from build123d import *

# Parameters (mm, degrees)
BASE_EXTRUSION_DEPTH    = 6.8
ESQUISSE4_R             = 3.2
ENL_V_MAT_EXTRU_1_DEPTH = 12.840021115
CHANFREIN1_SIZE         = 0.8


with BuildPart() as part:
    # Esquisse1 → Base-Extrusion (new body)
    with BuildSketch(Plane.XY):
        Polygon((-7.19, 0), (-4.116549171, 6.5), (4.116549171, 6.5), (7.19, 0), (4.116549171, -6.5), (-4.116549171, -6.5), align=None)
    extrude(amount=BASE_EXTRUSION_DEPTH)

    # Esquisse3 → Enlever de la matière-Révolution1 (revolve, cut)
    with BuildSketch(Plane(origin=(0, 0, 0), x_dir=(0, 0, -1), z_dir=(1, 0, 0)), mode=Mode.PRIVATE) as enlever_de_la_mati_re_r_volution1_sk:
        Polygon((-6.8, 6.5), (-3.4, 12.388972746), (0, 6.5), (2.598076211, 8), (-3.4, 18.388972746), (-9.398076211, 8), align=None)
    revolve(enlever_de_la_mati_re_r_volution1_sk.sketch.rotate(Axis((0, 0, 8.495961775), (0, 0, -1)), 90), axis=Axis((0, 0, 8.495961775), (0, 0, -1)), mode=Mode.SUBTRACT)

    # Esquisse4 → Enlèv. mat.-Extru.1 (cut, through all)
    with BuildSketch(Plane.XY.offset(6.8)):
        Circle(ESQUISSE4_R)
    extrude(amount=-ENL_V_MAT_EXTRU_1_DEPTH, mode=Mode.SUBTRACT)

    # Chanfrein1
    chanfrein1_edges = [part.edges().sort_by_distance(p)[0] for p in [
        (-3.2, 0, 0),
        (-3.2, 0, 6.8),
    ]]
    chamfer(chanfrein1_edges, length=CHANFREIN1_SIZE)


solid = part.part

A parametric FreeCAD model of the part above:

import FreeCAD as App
import Part
import Sketcher
from FreeCAD import Vector
Q = App.Units.Quantity


def edges_at(feature, points):
    """Names of the edges that pass closest to the given points."""
    edges = feature.Shape.Edges
    near = lambda p: min(range(len(edges)), key=lambda i: edges[i].distToShape(Part.Vertex(*p))[0])
    return sorted({f"Edge{near(p) + 1}" for p in points})

doc = App.newDocument("Part")
body = doc.addObject("PartDesign::Body", "Body")

# Sketch on XY plane
sketch1 = doc.addObject("Sketcher::SketchObject", "Sketch")
body.addObject(sketch1)
sketch1.AttachmentSupport = (doc.XY_Plane, [""])
sketch1.MapMode = "FlatFace"
sketch1.addGeometry(Part.LineSegment(Vector(-4, 6, 0), Vector(-7, 0, 0)), False)
sketch1.addGeometry(Part.LineSegment(Vector(-7, 0, 0), Vector(-4, -6, 0)), False)
sketch1.addGeometry(Part.LineSegment(Vector(-4, -6, 0), Vector(4, -6, 0)), False)
sketch1.addGeometry(Part.LineSegment(Vector(4, -6, 0), Vector(7, 0, 0)), False)
sketch1.addGeometry(Part.LineSegment(Vector(7, 0, 0), Vector(4, 6, 0)), False)
sketch1.addGeometry(Part.LineSegment(Vector(4, 6, 0), Vector(-4, 6, 0)), False)
sketch1.addConstraint(Sketcher.Constraint("Coincident", 0, 2, 1, 1))
sketch1.addConstraint(Sketcher.Constraint("Coincident", 1, 2, 2, 1))
sketch1.addConstraint(Sketcher.Constraint("Coincident", 2, 2, 3, 1))
sketch1.addConstraint(Sketcher.Constraint("Coincident", 3, 2, 4, 1))
sketch1.addConstraint(Sketcher.Constraint("Coincident", 4, 2, 5, 1))
sketch1.addConstraint(Sketcher.Constraint("Coincident", 5, 2, 0, 1))
sketch1.addConstraint(Sketcher.Constraint("Horizontal", 2))
sketch1.addConstraint(Sketcher.Constraint("Horizontal", 5))
sketch1.addConstraint(Sketcher.Constraint("Symmetric", 0, 2, 3, 2, -1, 1))
sketch1.addConstraint(Sketcher.Constraint("Symmetric", 1, 2, 4, 2, -1, 1))
sketch1.addConstraint(Sketcher.Constraint("PointOnObject", 0, 2, -1))
sketch1.addConstraint(Sketcher.Constraint("Parallel", 0, 3))
sketch1.addConstraint(Sketcher.Constraint("Vertical", 2, 2, 4, 2))
sketch1.addConstraint(Sketcher.Constraint("DistanceY", 2, 2, 4, 2, 13.0))
sketch1.addConstraint(Sketcher.Constraint("Distance", 0, 7.19))
sketch1.addConstraint(Sketcher.Constraint("DistanceX", 0, 2, -1, 1, 7.19))
pad1 = doc.addObject("PartDesign::Pad", "Pad")
body.addObject(pad1)
pad1.Profile = sketch1
pad1.Length = 6.8

# Sketch on YZ plane
sketch2 = doc.addObject("Sketcher::SketchObject", "Sketch001")
body.addObject(sketch2)
sketch2.AttachmentSupport = (doc.YZ_Plane, [""])
sketch2.MapMode = "FlatFace"
sketch2.addGeometry(Part.LineSegment(Vector(6.5, 6.8, 0), Vector(12.4, 3.4, 0)), False)
sketch2.addGeometry(Part.LineSegment(Vector(12.4, 3.4, 0), Vector(6.5, 0, 0)), False)
sketch2.addGeometry(Part.LineSegment(Vector(6.5, 0, 0), Vector(8, -2.6, 0)), False)
sketch2.addGeometry(Part.LineSegment(Vector(8, -2.6, 0), Vector(18.4, 3.4, 0)), False)
sketch2.addGeometry(Part.LineSegment(Vector(18.4, 3.4, 0), Vector(8, 9.4, 0)), False)
sketch2.addGeometry(Part.LineSegment(Vector(8, 9.4, 0), Vector(6.5, 6.8, 0)), False)
sketch2.addConstraint(Sketcher.Constraint("Coincident", 0, 2, 1, 1))
sketch2.addConstraint(Sketcher.Constraint("Coincident", 1, 2, 2, 1))
sketch2.addConstraint(Sketcher.Constraint("Coincident", 2, 2, 3, 1))
sketch2.addConstraint(Sketcher.Constraint("Coincident", 3, 2, 4, 1))
sketch2.addConstraint(Sketcher.Constraint("Coincident", 4, 2, 5, 1))
sketch2.addConstraint(Sketcher.Constraint("Coincident", 5, 2, 0, 1))
sketch2.addConstraint(Sketcher.Constraint("PointOnObject", 1, 2, -1))
sketch2.addConstraint(Sketcher.Constraint("Perpendicular", 1, 2))
sketch2.addConstraint(Sketcher.Constraint("Perpendicular", 2, 3))
sketch2.addConstraint(Sketcher.Constraint("Parallel", 0, 4))
sketch2.addConstraint(Sketcher.Constraint("Perpendicular", 4, 5))
sketch2.addConstraint(Sketcher.Constraint("Horizontal", 0, 2, 3, 2))
sketch2.addConstraint(Sketcher.Constraint("Vertical", 2, 2, 4, 2))
sketch2.addConstraint(Sketcher.Constraint("Vertical", 1, 2, 5, 2))
sketch2.addConstraint(Sketcher.Constraint("Angle", 0, Q("-30 deg")))
sketch2.addConstraint(Sketcher.Constraint("Distance", 2, 3.0))
sketch2.addConstraint(Sketcher.Constraint("DistanceX", -1, 1, 2, 2, 8.0))
sketch2.addConstraint(Sketcher.Constraint("Distance", 0, 6.8))
groove = doc.addObject("PartDesign::Groove", "Groove")
body.addObject(groove)
groove.Profile = sketch2
groove.ReferenceAxis = (sketch2, ["V_Axis"])
groove.Angle = 360

# Sketch on XY plane
sketch3 = doc.addObject("Sketcher::SketchObject", "Sketch002")
body.addObject(sketch3)
sketch3.AttachmentSupport = (doc.XY_Plane, [""])
sketch3.MapMode = "FlatFace"
sketch3.AttachmentOffset = App.Placement(Vector(0, 0, 6.8), App.Rotation())
sketch3.addGeometry(Part.Circle(Vector(0, 0, 0), Vector(0, 0, 1), 3.2), False)
sketch3.addConstraint(Sketcher.Constraint("Coincident", 0, 3, -1, 1))
sketch3.addConstraint(Sketcher.Constraint("Diameter", 0, 6.4))
pocket1 = doc.addObject("PartDesign::Pocket", "Pocket")
body.addObject(pocket1)
pocket1.Profile = sketch3
pocket1.Type = "ThroughAll"
doc.recompute()

chamfer = doc.addObject("PartDesign::Chamfer", "Chamfer")
body.addObject(chamfer)
chamfer.Base = (pocket1, edges_at(pocket1, [(-3.2, 0, 0), (-3.2, 0, 6.8)]))
chamfer.Size = 0.8

doc.recompute()
